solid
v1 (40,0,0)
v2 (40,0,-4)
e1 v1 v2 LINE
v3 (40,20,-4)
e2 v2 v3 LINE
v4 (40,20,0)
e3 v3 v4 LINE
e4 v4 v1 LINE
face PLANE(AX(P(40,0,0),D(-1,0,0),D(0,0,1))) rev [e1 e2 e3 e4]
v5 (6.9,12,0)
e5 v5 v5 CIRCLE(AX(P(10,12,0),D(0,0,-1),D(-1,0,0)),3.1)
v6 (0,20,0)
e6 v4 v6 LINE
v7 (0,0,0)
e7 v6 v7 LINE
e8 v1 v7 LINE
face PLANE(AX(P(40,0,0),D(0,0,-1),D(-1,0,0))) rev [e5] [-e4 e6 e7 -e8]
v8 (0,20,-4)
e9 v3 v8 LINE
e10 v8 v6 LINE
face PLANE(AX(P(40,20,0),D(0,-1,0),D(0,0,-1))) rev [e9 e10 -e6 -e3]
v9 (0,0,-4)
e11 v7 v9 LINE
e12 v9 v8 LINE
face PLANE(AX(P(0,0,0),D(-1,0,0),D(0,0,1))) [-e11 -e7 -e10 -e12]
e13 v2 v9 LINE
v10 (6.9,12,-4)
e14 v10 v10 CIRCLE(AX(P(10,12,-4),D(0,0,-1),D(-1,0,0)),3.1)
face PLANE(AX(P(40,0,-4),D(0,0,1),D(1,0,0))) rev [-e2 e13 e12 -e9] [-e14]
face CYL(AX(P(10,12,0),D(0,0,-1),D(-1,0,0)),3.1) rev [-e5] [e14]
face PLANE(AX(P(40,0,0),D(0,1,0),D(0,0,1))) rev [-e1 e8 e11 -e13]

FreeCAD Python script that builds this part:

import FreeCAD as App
import Part
import Sketcher
from FreeCAD import Vector

doc = App.newDocument("Part")
body = doc.addObject("PartDesign::Body", "Body")

# Sketch on YZ plane
sketch1 = body.newObject("Sketcher::SketchObject", "Sketch")
sketch1.AttachmentSupport = (doc.getObject("YZ_Plane"), [""])
sketch1.MapMode = "FlatFace"
sketch1.addGeometry([
    Part.LineSegment(Vector(20, 0, 0), Vector(0, 0, 0)),
    Part.LineSegment(Vector(0, 0, 0), Vector(0, -4, 0)),
    Part.LineSegment(Vector(0, -4, 0), Vector(20, -4, 0)),
    Part.LineSegment(Vector(20, -4, 0), Vector(20, 0, 0)),
], False)
sketch1.addConstraint([
    Sketcher.Constraint("Coincident", 0, 2, 1, 1),
    Sketcher.Constraint("Coincident", 1, 2, 2, 1),
    Sketcher.Constraint("Coincident", 2, 2, 3, 1),
    Sketcher.Constraint("Coincident", 3, 2, 0, 1),
    Sketcher.Constraint("Horizontal", 0),
    Sketcher.Constraint("Vertical", 1),
    Sketcher.Constraint("Horizontal", 2),
    Sketcher.Constraint("Vertical", 3),
    Sketcher.Constraint("Coincident", 0, 2, -1, 1),
    Sketcher.Constraint("DistanceX", 0, 2, 0, 1, 20.0),
    Sketcher.Constraint("DistanceY", 1, 2, 1, 1, 4.0),
])
pad1 = body.newObject("PartDesign::Pad", "Pad")
pad1.Profile = sketch1
pad1.Length = 40

# Sketch on XY plane
sketch2 = body.newObject("Sketcher::SketchObject", "Sketch001")
sketch2.AttachmentSupport = (doc.getObject("XY_Plane"), [""])
sketch2.MapMode = "FlatFace"
sketch2.AttachmentOffset = App.Placement(Vector(0, 0, -4), App.Rotation())
sketch2.addGeometry(Part.Circle(Vector(10, 12, 0), Vector(0, 0, 1), 3.1), False)
sketch2.addConstraint([
    Sketcher.Constraint("Diameter", 0, 6.2),
    Sketcher.Constraint("DistanceX", -1, 1, 0, 3, 10.0),
    Sketcher.Constraint("DistanceY", -1, 1, 0, 3, 12.0),
])
pocket1 = body.newObject("PartDesign::Pocket", "Pocket")
pocket1.Profile = sketch2
pocket1.Type = "ThroughAll"
pocket1.Reversed = True

doc.recompute()
